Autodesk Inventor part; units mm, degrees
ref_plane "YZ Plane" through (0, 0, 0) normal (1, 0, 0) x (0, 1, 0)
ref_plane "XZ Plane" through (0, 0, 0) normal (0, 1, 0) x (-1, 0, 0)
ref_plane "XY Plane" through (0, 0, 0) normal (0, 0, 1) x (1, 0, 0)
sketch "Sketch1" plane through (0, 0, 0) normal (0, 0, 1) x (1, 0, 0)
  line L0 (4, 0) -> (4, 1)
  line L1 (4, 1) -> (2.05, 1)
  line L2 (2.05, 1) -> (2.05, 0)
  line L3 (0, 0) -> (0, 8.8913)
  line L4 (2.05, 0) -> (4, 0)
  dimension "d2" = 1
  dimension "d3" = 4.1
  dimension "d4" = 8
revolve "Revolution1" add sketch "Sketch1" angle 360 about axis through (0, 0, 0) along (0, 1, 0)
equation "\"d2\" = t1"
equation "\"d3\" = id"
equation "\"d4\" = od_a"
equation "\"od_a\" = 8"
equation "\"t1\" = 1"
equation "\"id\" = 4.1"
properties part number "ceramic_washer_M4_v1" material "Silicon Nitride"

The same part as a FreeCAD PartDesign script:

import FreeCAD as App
import Part
import Sketcher


def add_polygon(sketch, points):
    """Adds a closed chain of lines whose ends are joined by coincident constraints."""
    first, n = sketch.GeometryCount, len(points)
    for a, b in zip(points, points[1:] + points[:1]):
        sketch.addGeometry(Part.LineSegment(App.Vector(*a, 0), App.Vector(*b, 0)), False)
    for i in range(n):
        sketch.addConstraint(Sketcher.Constraint("Coincident", first + i, 2, first + (i + 1) % n, 1))

doc = App.newDocument("Part")
body = doc.addObject("PartDesign::Body", "Body")

# Sketch on XY plane
sketch1 = body.newObject("Sketcher::SketchObject", "Sketch")
sketch1.AttachmentSupport = (doc.getObject("XY_Plane"), [""])
sketch1.MapMode = "FlatFace"
add_polygon(sketch1, [(2, 0), (4, 0), (4, 1), (2, 1)])  # lines 0-3
sketch1.addConstraint(Sketcher.Constraint("Horizontal", 0))
sketch1.addConstraint(Sketcher.Constraint("Vertical", 1))
sketch1.addConstraint(Sketcher.Constraint("Horizontal", 2))
sketch1.addConstraint(Sketcher.Constraint("Vertical", 3))
sketch1.addConstraint(Sketcher.Constraint("PointOnObject", 0, 2, -1))
sketch1.addConstraint(Sketcher.Constraint("DistanceY", 1, 1, 1, 2, 1.0))
sketch1.addConstraint(Sketcher.Constraint("DistanceX", -1, 1, 0, 2, 4.0))
sketch1.addConstraint(Sketcher.Constraint("DistanceX", 0, 1, 0, 2, 1.95))
revolution = body.newObject("PartDesign::Revolution", "Revolution")
revolution.Profile = sketch1
revolution.ReferenceAxis = (sketch1, ["V_Axis"])
revolution.Angle = 360

doc.recompute()
